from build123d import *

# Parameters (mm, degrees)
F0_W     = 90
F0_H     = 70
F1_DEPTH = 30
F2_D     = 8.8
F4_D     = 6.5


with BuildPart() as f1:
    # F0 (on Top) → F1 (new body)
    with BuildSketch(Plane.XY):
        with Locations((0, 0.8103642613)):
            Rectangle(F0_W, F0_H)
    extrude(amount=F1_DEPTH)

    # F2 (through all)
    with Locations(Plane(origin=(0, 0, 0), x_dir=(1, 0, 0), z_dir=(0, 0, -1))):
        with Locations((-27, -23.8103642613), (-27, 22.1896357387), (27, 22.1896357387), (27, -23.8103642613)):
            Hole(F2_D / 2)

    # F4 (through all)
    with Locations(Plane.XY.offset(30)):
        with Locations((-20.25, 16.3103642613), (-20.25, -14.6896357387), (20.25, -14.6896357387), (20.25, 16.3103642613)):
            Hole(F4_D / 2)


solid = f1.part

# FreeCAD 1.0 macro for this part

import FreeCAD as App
import Part
import Sketcher
from FreeCAD import Vector

doc = App.newDocument("Part")
body = doc.addObject("PartDesign::Body", "Body")

sketch1 = doc.addObject("Sketcher::SketchObject", "Sketch")
body.addObject(sketch1)
sketch1.AttachmentSupport = (doc.XY_Plane, [""])
sketch1.MapMode = "FlatFace"
sketch1.addGeometry([
    Part.LineSegment(Vector(-45, 36, 0), Vector(-45, -34, 0)),
    Part.LineSegment(Vector(-45, -34, 0), Vector(45, -34, 0)),
    Part.LineSegment(Vector(45, -34, 0), Vector(45, 36, 0)),
    Part.LineSegment(Vector(45, 36, 0), Vector(-45, 36, 0)),
], False)
sketch1.addConstraint([
    Sketcher.Constraint("Coincident", 0, 2, 1, 1),
    Sketcher.Constraint("Coincident", 1, 2, 2, 1),
    Sketcher.Constraint("Coincident", 2, 2, 3, 1),
    Sketcher.Constraint("Coincident", 3, 2, 0, 1),
    Sketcher.Constraint("Vertical", 0),
    Sketcher.Constraint("Horizontal", 1),
    Sketcher.Constraint("Vertical", 2),
    Sketcher.Constraint("Horizontal", 3),
    Sketcher.Constraint("DistanceX", 1, 1, 1, 2, 90.0),
    Sketcher.Constraint("DistanceY", 0, 2, 0, 1, 70.0),
    Sketcher.Constraint("DistanceX", 0, 2, -1, 1, 45.0),
    Sketcher.Constraint("DistanceY", 0, 2, -1, 1, 34.189636),
])
pad1 = doc.addObject("PartDesign::Pad", "Pad")
body.addObject(pad1)
pad1.Profile = sketch1
pad1.Length = 30

sketch2 = doc.addObject("Sketcher::SketchObject", "Sketch001")
body.addObject(sketch2)
sketch2.AttachmentSupport = (doc.XY_Plane, [""])
sketch2.MapMode = "FlatFace"
sketch2.addGeometry([
    Part.Circle(Vector(-27, 23.8, 0), Vector(0, 0, 1), 4.4),
    Part.Circle(Vector(-27, -22.2, 0), Vector(0, 0, 1), 4.4),
    Part.Circle(Vector(27, -22.2, 0), Vector(0, 0, 1), 4.4),
    Part.Circle(Vector(27, 23.8, 0), Vector(0, 0, 1), 4.4),
], False)
sketch2.addConstraint([
    Sketcher.Constraint("Equal", 0, 1),
    Sketcher.Constraint("Equal", 1, 2),
    Sketcher.Constraint("Equal", 2, 3),
    Sketcher.Constraint("Symmetric", 1, 3, 2, 3, -2),
    Sketcher.Constraint("Symmetric", 0, 3, 3, 3, -2),
    Sketcher.Constraint("Vertical", 0, 3, 1, 3),
    Sketcher.Constraint("Diameter", 0, 8.8),
    Sketcher.Constraint("DistanceX", 0, 3, -1, 1, 27.0),
    Sketcher.Constraint("DistanceY", 1, 3, 0, 3, 46.0),
    Sketcher.Constraint("DistanceY", -1, 1, 0, 3, 23.810364),
])
doc.recompute()
hole = doc.addObject("PartDesign::Hole", "Hole")
body.addObject(hole)
hole.Profile = sketch2
hole.ThreadType = "None"
hole.Diameter = 8.8
hole.DepthType = "ThroughAll"
hole.Reversed = True

sketch3 = doc.addObject("Sketcher::SketchObject", "Sketch002")
body.addObject(sketch3)
sketch3.AttachmentSupport = (doc.XY_Plane, [""])
sketch3.MapMode = "FlatFace"
sketch3.AttachmentOffset = App.Placement(Vector(0, 0, 30), App.Rotation())
sketch3.addGeometry([
    Part.Circle(Vector(-20.2, 16.3, 0), Vector(0, 0, 1), 3.2),
    Part.Circle(Vector(-20.2, -14.7, 0), Vector(0, 0, 1), 3.2),
    Part.Circle(Vector(20.2, -14.7, 0), Vector(0, 0, 1), 3.2),
    Part.Circle(Vector(20.2, 16.3, 0), Vector(0, 0, 1), 3.2),
], False)
sketch3.addConstraint([
    Sketcher.Constraint("Equal", 0, 1),
    Sketcher.Constraint("Equal", 1, 2),
    Sketcher.Constraint("Equal", 2, 3),
    Sketcher.Constraint("Symmetric", 1, 3, 2, 3, -2),
    Sketcher.Constraint("Symmetric", 0, 3, 3, 3, -2),
    Sketcher.Constraint("Vertical", 0, 3, 1, 3),
    Sketcher.Constraint("Diameter", 0, 6.5),
    Sketcher.Constraint("DistanceY", 1, 3, 0, 3, 31.0),
    Sketcher.Constraint("DistanceX", 1, 3, 2, 3, 40.5),
    Sketcher.Constraint("DistanceY", -1, 1, 0, 3, 16.310364),
])
doc.recompute()
hole2 = doc.addObject("PartDesign::Hole", "Hole001")
body.addObject(hole2)
hole2.Profile = sketch3
hole2.ThreadType = "None"
hole2.Diameter = 6.5
hole2.DepthType = "ThroughAll"

doc.recompute()
